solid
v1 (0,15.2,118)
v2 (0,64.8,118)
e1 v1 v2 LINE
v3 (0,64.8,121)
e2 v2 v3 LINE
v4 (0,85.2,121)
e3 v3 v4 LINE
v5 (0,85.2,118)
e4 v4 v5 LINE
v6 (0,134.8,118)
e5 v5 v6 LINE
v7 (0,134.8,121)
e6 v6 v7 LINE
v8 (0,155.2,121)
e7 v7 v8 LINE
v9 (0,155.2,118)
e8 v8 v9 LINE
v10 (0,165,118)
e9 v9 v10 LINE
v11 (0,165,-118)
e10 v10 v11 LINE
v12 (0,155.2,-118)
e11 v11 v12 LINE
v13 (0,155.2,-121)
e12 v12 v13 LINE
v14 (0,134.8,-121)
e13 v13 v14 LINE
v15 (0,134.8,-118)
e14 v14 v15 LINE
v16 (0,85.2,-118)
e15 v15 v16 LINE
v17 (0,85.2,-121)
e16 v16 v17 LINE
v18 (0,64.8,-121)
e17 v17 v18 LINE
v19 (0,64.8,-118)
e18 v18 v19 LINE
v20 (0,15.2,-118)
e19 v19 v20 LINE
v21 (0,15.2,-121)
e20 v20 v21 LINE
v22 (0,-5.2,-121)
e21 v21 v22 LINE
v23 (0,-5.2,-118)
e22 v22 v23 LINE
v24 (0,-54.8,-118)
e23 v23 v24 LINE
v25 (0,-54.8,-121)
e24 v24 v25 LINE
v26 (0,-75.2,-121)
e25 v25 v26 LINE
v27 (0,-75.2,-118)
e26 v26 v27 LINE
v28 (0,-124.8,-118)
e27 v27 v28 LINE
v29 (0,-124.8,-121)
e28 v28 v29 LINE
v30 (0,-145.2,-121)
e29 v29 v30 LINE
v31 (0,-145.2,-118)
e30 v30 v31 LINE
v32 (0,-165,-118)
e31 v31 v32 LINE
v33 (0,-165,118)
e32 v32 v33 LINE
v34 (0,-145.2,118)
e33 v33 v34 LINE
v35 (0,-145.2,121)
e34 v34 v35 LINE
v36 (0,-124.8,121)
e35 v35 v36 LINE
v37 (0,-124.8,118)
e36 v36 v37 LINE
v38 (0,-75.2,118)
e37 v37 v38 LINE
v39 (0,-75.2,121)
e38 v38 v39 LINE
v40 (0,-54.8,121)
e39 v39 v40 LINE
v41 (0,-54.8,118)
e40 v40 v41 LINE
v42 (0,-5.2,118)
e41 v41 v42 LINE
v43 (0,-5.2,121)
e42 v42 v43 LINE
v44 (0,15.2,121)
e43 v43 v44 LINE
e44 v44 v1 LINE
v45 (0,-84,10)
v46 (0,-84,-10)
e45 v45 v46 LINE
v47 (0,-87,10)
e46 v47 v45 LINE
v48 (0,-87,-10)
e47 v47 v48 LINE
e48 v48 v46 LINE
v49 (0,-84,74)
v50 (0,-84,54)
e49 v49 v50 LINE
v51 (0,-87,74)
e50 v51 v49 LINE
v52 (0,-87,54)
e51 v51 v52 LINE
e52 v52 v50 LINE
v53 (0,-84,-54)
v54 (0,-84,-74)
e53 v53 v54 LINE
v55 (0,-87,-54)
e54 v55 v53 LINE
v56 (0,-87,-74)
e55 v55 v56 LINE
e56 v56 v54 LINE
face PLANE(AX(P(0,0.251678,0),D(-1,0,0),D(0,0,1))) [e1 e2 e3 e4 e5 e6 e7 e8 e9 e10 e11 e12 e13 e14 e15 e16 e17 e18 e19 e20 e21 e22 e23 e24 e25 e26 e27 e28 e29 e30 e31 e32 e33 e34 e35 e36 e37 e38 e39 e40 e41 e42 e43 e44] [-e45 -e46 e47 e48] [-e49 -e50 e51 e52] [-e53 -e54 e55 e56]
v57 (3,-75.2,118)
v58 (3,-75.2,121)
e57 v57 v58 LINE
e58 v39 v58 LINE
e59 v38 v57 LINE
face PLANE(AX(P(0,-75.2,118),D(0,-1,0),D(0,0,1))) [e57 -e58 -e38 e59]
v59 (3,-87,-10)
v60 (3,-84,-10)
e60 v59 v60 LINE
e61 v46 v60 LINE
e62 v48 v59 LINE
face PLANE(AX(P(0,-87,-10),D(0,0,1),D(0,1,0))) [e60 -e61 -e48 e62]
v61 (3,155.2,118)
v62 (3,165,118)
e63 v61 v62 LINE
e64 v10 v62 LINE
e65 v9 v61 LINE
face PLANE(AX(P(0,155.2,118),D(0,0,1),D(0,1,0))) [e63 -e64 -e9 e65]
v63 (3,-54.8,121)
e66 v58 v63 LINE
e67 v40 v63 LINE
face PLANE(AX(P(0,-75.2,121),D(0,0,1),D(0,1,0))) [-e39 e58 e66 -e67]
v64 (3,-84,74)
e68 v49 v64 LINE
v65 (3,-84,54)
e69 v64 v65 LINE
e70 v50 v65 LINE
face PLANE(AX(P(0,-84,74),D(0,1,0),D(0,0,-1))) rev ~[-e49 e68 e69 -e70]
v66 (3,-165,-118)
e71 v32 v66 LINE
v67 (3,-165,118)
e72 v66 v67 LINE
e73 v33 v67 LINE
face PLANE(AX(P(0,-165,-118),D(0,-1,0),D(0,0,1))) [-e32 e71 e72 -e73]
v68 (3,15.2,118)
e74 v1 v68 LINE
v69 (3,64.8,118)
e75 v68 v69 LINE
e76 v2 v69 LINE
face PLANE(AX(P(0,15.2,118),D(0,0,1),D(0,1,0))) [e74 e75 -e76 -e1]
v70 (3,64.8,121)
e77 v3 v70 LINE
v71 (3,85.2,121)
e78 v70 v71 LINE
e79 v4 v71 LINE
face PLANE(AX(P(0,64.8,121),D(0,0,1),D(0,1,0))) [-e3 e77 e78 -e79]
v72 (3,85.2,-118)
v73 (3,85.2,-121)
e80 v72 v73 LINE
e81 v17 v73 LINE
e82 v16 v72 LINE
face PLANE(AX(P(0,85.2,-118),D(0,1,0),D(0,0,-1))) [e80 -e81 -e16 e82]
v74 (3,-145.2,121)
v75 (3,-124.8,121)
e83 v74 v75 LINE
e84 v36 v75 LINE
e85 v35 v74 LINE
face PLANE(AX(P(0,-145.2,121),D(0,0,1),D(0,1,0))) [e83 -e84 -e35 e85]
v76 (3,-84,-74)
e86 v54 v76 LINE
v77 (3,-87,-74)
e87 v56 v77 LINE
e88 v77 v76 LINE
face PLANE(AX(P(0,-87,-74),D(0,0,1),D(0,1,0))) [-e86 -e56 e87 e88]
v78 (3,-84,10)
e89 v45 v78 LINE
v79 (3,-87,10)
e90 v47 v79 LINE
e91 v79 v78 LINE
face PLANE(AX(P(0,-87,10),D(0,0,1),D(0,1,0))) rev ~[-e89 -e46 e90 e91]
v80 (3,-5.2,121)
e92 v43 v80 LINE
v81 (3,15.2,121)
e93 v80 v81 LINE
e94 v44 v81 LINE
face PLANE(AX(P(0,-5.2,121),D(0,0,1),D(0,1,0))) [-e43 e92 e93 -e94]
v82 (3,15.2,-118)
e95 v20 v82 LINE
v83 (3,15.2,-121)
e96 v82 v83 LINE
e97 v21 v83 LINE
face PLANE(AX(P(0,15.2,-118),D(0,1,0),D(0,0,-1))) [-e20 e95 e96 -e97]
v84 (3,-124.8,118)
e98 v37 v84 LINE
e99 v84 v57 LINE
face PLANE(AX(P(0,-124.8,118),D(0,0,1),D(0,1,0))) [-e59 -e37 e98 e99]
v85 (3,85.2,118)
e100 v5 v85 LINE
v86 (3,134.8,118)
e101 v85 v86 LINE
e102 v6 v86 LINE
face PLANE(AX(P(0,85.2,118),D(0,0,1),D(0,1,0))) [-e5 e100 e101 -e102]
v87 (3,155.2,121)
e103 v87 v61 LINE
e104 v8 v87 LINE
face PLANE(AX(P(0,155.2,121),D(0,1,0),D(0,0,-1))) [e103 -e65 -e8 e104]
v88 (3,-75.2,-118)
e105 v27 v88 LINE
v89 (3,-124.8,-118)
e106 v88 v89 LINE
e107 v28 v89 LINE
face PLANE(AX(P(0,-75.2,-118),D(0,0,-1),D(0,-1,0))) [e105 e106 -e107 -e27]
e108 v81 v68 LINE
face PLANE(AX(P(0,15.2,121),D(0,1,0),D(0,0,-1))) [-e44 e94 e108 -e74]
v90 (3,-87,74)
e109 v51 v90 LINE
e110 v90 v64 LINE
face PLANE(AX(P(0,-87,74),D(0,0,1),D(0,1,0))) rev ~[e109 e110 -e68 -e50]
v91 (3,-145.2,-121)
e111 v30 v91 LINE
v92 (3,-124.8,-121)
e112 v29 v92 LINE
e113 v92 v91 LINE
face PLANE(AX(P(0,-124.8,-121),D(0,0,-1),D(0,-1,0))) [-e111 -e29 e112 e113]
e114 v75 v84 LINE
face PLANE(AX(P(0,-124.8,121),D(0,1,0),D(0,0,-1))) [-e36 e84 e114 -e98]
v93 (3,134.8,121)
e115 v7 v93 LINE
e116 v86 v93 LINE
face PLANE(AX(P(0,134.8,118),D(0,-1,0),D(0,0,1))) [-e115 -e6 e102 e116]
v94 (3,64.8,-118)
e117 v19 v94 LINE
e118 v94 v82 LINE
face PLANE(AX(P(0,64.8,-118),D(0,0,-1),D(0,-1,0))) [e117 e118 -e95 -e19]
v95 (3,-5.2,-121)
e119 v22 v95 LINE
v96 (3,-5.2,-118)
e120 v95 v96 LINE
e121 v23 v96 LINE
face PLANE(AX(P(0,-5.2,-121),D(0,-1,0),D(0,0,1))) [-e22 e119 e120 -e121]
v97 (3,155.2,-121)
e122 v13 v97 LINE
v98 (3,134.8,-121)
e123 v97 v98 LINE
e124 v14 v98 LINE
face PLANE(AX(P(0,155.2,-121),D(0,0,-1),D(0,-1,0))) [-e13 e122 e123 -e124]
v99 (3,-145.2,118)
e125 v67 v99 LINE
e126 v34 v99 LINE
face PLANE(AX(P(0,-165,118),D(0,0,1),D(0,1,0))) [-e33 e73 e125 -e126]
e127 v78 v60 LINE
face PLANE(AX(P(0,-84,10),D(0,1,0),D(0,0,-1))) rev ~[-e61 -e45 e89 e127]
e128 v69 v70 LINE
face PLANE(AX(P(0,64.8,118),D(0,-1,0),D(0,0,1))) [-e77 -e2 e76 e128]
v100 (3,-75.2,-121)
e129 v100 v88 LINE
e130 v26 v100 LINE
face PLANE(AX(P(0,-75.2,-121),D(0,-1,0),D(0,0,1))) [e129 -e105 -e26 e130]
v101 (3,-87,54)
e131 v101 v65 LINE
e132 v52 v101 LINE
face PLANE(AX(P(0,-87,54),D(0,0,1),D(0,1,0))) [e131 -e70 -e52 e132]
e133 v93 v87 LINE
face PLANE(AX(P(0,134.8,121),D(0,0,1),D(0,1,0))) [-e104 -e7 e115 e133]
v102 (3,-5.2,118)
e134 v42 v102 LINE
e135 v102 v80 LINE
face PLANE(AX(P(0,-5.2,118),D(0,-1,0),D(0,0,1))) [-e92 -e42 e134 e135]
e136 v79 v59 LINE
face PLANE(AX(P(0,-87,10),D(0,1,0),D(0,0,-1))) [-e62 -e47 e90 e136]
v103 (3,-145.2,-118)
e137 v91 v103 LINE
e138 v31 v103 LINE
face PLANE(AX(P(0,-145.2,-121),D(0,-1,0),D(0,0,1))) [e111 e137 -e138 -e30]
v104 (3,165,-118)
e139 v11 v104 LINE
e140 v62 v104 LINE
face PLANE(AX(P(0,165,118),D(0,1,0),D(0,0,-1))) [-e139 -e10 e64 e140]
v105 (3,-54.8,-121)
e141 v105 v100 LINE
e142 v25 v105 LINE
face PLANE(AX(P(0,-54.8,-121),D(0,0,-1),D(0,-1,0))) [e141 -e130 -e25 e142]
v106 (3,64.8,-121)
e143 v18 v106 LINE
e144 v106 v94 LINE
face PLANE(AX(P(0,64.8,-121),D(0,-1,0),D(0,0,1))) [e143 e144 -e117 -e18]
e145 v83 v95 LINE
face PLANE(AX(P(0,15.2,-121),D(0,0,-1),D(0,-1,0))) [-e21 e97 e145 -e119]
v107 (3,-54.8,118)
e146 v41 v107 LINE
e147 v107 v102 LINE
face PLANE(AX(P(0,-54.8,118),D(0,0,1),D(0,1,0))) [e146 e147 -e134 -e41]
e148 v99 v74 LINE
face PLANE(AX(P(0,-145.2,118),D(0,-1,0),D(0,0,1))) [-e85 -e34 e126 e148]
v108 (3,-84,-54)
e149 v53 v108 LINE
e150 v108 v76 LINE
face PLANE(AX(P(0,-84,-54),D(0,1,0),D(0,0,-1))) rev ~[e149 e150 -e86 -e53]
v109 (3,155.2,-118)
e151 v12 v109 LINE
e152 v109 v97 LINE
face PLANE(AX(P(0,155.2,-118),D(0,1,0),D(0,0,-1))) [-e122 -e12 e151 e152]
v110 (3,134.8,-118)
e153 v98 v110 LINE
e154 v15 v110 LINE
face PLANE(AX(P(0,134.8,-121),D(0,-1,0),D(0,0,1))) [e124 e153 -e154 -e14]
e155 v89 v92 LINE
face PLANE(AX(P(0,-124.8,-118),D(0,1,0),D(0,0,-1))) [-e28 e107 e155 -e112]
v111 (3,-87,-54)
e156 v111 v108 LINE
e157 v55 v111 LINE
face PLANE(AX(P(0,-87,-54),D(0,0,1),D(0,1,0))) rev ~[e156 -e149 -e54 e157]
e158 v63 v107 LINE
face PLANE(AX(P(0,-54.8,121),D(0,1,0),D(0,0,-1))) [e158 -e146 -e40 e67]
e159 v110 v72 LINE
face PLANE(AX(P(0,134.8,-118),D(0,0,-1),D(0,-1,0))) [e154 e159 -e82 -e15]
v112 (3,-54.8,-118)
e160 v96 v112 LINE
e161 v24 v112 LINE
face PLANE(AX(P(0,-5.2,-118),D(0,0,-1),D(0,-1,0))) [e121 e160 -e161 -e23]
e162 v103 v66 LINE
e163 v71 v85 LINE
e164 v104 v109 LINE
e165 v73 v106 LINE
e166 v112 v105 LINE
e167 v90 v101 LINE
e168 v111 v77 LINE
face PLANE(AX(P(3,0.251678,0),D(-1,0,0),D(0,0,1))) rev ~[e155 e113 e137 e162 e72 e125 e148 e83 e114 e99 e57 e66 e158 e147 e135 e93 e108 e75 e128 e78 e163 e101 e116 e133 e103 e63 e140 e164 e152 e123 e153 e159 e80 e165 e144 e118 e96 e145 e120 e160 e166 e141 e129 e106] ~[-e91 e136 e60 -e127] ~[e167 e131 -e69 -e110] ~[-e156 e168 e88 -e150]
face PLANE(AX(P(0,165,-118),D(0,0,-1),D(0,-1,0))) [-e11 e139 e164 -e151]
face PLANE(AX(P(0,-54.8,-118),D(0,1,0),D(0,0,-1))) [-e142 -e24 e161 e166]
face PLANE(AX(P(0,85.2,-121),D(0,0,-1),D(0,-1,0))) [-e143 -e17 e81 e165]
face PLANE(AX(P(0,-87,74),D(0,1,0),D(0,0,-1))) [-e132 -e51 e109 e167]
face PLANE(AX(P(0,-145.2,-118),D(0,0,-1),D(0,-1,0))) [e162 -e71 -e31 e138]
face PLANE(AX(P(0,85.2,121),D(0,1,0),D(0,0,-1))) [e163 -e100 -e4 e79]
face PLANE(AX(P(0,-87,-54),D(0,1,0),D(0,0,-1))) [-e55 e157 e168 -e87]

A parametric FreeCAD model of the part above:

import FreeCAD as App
import Part
import Sketcher
from FreeCAD import Vector


def add_polygon(sketch, points):
    """Adds a closed chain of lines whose ends are joined by coincident constraints."""
    first, n = sketch.GeometryCount, len(points)
    for a, b in zip(points, points[1:] + points[:1]):
        sketch.addGeometry(Part.LineSegment(App.Vector(*a, 0), App.Vector(*b, 0)), False)
    for i in range(n):
        sketch.addConstraint(Sketcher.Constraint("Coincident", first + i, 2, first + (i + 1) % n, 1))

doc = App.newDocument("Part")
body = doc.addObject("PartDesign::Body", "Body")

# Sketch on YZ plane
sketch1 = body.newObject("Sketcher::SketchObject", "Sketch")
sketch1.AttachmentSupport = (doc.getObject("YZ_Plane"), [""])
sketch1.MapMode = "FlatFace"
add_polygon(sketch1, [(-145.2, 118), (-165, 118), (-165, -118), (-145.2, -118), (-145.2, -121), (-124.8, -121), (-124.8, -118), (-75.2, -118), (-75.2, -121), (-54.8, -121), (-54.8, -118), (-5.2, -118), (-5.2, -121), (15.2, -121), (15.2, -118), (64.8, -118), (64.8, -121), (85.2, -121), (85.2, -118), (134.8, -118), (134.8, -121), (155.2, -121), (155.2, -118), (165, -118), (165, 118), (155.2, 118), (155.2, 121), (134.8, 121), (134.8, 118), (85.2, 118), (85.2, 121), (64.8, 121), (64.8, 118), (15.2, 118), (15.2, 121), (-5.2, 121), (-5.2, 118), (-54.8, 118), (-54.8, 121), (-75.2, 121), (-75.2, 118), (-124.8, 118), (-124.8, 121), (-145.2, 121)])  # lines 0-43
add_polygon(sketch1, [(-87, -54), (-84, -54), (-84, -74), (-87, -74)])  # lines 44-47
add_polygon(sketch1, [(-87, 10), (-84, 10), (-84, -10), (-87, -10)])  # lines 48-51
add_polygon(sketch1, [(-87, 74), (-84, 74), (-84, 54), (-87, 54)])  # lines 52-55
sketch1.addConstraint(Sketcher.Constraint("Horizontal", 0))
sketch1.addConstraint(Sketcher.Constraint("Vertical", 1))
sketch1.addConstraint(Sketcher.Constraint("Horizontal", 2))
sketch1.addConstraint(Sketcher.Constraint("Vertical", 3))
sketch1.addConstraint(Sketcher.Constraint("Horizontal", 4))
sketch1.addConstraint(Sketcher.Constraint("Vertical", 5))
sketch1.addConstraint(Sketcher.Constraint("Horizontal", 6))
sketch1.addConstraint(Sketcher.Constraint("Vertical", 7))
sketch1.addConstraint(Sketcher.Constraint("Horizontal", 8))
sketch1.addConstraint(Sketcher.Constraint("Vertical", 9))
sketch1.addConstraint(Sketcher.Constraint("Horizontal", 10))
sketch1.addConstraint(Sketcher.Constraint("Vertical", 11))
sketch1.addConstraint(Sketcher.Constraint("Horizontal", 12))
sketch1.addConstraint(Sketcher.Constraint("Vertical", 13))
sketch1.addConstraint(Sketcher.Constraint("Horizontal", 14))
sketch1.addConstraint(Sketcher.Constraint("Vertical", 15))
sketch1.addConstraint(Sketcher.Constraint("Horizontal", 16))
sketch1.addConstraint(Sketcher.Constraint("Vertical", 17))
sketch1.addConstraint(Sketcher.Constraint("Horizontal", 18))
sketch1.addConstraint(Sketcher.Constraint("Vertical", 19))
sketch1.addConstraint(Sketcher.Constraint("Horizontal", 20))
sketch1.addConstraint(Sketcher.Constraint("Vertical", 21))
sketch1.addConstraint(Sketcher.Constraint("Horizontal", 22))
sketch1.addConstraint(Sketcher.Constraint("Vertical", 23))
sketch1.addConstraint(Sketcher.Constraint("Horizontal", 24))
sketch1.addConstraint(Sketcher.Constraint("Vertical", 25))
sketch1.addConstraint(Sketcher.Constraint("Horizontal", 26))
sketch1.addConstraint(Sketcher.Constraint("Vertical", 27))
sketch1.addConstraint(Sketcher.Constraint("Horizontal", 28))
sketch1.addConstraint(Sketcher.Constraint("Vertical", 29))
sketch1.addConstraint(Sketcher.Constraint("Horizontal", 30))
sketch1.addConstraint(Sketcher.Constraint("Vertical", 31))
sketch1.addConstraint(Sketcher.Constraint("Horizontal", 32))
sketch1.addConstraint(Sketcher.Constraint("Vertical", 33))
sketch1.addConstraint(Sketcher.Constraint("Horizontal", 34))
sketch1.addConstraint(Sketcher.Constraint("Vertical", 35))
sketch1.addConstraint(Sketcher.Constraint("Horizontal", 36))
sketch1.addConstraint(Sketcher.Constraint("Vertical", 37))
sketch1.addConstraint(Sketcher.Constraint("Horizontal", 38))
sketch1.addConstraint(Sketcher.Constraint("Vertical", 39))
sketch1.addConstraint(Sketcher.Constraint("Horizontal", 40))
sketch1.addConstraint(Sketcher.Constraint("Vertical", 41))
sketch1.addConstraint(Sketcher.Constraint("Horizontal", 42))
sketch1.addConstraint(Sketcher.Constraint("Vertical", 43))
sketch1.addConstraint(Sketcher.Constraint("Horizontal", 44))
sketch1.addConstraint(Sketcher.Constraint("Vertical", 45))
sketch1.addConstraint(Sketcher.Constraint("Horizontal", 46))
sketch1.addConstraint(Sketcher.Constraint("Vertical", 47))
sketch1.addConstraint(Sketcher.Constraint("Horizontal", 48))
sketch1.addConstraint(Sketcher.Constraint("Vertical", 49))
sketch1.addConstraint(Sketcher.Constraint("Horizontal", 50))
sketch1.addConstraint(Sketcher.Constraint("Vertical", 51))
sketch1.addConstraint(Sketcher.Constraint("Horizontal", 52))
sketch1.addConstraint(Sketcher.Constraint("Vertical", 53))
sketch1.addConstraint(Sketcher.Constraint("Horizontal", 54))
sketch1.addConstraint(Sketcher.Constraint("Vertical", 55))
sketch1.addConstraint(Sketcher.Constraint("Symmetric", 0, 2, 22, 2, -1, 1))
sketch1.addConstraint(Sketcher.Constraint("Symmetric", 21, 2, 24, 2, -1))
sketch1.addConstraint(Sketcher.Constraint("Symmetric", 19, 2, 26, 2, -1))
sketch1.addConstraint(Sketcher.Constraint("Symmetric", 17, 2, 28, 2, -1))
sketch1.addConstraint(Sketcher.Constraint("Symmetric", 15, 2, 30, 2, -1))
sketch1.addConstraint(Sketcher.Constraint("Symmetric", 13, 2, 32, 2, -1))
sketch1.addConstraint(Sketcher.Constraint("Symmetric", 11, 2, 34, 2, -1))
sketch1.addConstraint(Sketcher.Constraint("Symmetric", 9, 2, 36, 2, -1))
sketch1.addConstraint(Sketcher.Constraint("Symmetric", 7, 2, 38, 2, -1))
sketch1.addConstraint(Sketcher.Constraint("Symmetric", 5, 2, 40, 2, -1))
sketch1.addConstraint(Sketcher.Constraint("Symmetric", 3, 2, 42, 2, -1))
sketch1.addConstraint(Sketcher.Constraint("Symmetric", 45, 2, 52, 2, -1))
sketch1.addConstraint(Sketcher.Constraint("Symmetric", 47, 2, 54, 2, -1))
sketch1.addConstraint(Sketcher.Constraint("Horizontal", 2, 2, 5, 2))
sketch1.addConstraint(Sketcher.Constraint("Horizontal", 4, 2, 7, 2))
sketch1.addConstraint(Sketcher.Constraint("Horizontal", 6, 2, 9, 2))
sketch1.addConstraint(Sketcher.Constraint("Horizontal", 8, 2, 11, 2))
sketch1.addConstraint(Sketcher.Constraint("Horizontal", 10, 2, 13, 2))
sketch1.addConstraint(Sketcher.Constraint("Horizontal", 12, 2, 15, 2))
sketch1.addConstraint(Sketcher.Constraint("Horizontal", 14, 2, 17, 2))
sketch1.addConstraint(Sketcher.Constraint("Horizontal", 16, 2, 19, 2))
sketch1.addConstraint(Sketcher.Constraint("Horizontal", 18, 2, 21, 2))
sketch1.addConstraint(Sketcher.Constraint("Vertical", 45, 2, 48, 2))
sketch1.addConstraint(Sketcher.Constraint("Vertical", 47, 2, 50, 2))
sketch1.addConstraint(Sketcher.Constraint("Equal", 4, 8))
sketch1.addConstraint(Sketcher.Constraint("Equal", 6, 10))
sketch1.addConstraint(Sketcher.Constraint("Equal", 8, 12))
sketch1.addConstraint(Sketcher.Constraint("Equal", 10, 14))
sketch1.addConstraint(Sketcher.Constraint("Equal", 12, 16))
sketch1.addConstraint(Sketcher.Constraint("Equal", 14, 18))
sketch1.addConstraint(Sketcher.Constraint("Equal", 16, 20))
sketch1.addConstraint(Sketcher.Constraint("Equal", 54, 3))
sketch1.addConstraint(Sketcher.Constraint("Equal", 47, 49))
sketch1.addConstraint(Sketcher.Constraint("DistanceX", 44, 1, 44, 2, 3.0))
sketch1.addConstraint(Sketcher.Constraint("DistanceY", 1, 2, 1, 1, 236.0))
sketch1.addConstraint(Sketcher.Constraint("DistanceY", 45, 2, 45, 1, 20.0))
sketch1.addConstraint(Sketcher.Constraint("DistanceX", 0, 2, 0, 1, 19.8))
sketch1.addConstraint(Sketcher.Constraint("DistanceX", 4, 1, 4, 2, 20.4))
sketch1.addConstraint(Sketcher.Constraint("DistanceX", 6, 1, 6, 2, 49.6))
sketch1.addConstraint(Sketcher.Constraint("DistanceX", 22, 1, 22, 2, 9.8))
sketch1.addConstraint(Sketcher.Constraint("DistanceX", 44, 2, -1, 1, 84.0))
sketch1.addConstraint(Sketcher.Constraint("DistanceY", 44, 2, -1, 1, 54.0))
sketch1.addConstraint(Sketcher.Constraint("DistanceY", -1, 1, 48, 2, 10.0))
pad1 = body.newObject("PartDesign::Pad", "Pad")
pad1.Profile = sketch1
pad1.Length = 3

doc.recompute()
